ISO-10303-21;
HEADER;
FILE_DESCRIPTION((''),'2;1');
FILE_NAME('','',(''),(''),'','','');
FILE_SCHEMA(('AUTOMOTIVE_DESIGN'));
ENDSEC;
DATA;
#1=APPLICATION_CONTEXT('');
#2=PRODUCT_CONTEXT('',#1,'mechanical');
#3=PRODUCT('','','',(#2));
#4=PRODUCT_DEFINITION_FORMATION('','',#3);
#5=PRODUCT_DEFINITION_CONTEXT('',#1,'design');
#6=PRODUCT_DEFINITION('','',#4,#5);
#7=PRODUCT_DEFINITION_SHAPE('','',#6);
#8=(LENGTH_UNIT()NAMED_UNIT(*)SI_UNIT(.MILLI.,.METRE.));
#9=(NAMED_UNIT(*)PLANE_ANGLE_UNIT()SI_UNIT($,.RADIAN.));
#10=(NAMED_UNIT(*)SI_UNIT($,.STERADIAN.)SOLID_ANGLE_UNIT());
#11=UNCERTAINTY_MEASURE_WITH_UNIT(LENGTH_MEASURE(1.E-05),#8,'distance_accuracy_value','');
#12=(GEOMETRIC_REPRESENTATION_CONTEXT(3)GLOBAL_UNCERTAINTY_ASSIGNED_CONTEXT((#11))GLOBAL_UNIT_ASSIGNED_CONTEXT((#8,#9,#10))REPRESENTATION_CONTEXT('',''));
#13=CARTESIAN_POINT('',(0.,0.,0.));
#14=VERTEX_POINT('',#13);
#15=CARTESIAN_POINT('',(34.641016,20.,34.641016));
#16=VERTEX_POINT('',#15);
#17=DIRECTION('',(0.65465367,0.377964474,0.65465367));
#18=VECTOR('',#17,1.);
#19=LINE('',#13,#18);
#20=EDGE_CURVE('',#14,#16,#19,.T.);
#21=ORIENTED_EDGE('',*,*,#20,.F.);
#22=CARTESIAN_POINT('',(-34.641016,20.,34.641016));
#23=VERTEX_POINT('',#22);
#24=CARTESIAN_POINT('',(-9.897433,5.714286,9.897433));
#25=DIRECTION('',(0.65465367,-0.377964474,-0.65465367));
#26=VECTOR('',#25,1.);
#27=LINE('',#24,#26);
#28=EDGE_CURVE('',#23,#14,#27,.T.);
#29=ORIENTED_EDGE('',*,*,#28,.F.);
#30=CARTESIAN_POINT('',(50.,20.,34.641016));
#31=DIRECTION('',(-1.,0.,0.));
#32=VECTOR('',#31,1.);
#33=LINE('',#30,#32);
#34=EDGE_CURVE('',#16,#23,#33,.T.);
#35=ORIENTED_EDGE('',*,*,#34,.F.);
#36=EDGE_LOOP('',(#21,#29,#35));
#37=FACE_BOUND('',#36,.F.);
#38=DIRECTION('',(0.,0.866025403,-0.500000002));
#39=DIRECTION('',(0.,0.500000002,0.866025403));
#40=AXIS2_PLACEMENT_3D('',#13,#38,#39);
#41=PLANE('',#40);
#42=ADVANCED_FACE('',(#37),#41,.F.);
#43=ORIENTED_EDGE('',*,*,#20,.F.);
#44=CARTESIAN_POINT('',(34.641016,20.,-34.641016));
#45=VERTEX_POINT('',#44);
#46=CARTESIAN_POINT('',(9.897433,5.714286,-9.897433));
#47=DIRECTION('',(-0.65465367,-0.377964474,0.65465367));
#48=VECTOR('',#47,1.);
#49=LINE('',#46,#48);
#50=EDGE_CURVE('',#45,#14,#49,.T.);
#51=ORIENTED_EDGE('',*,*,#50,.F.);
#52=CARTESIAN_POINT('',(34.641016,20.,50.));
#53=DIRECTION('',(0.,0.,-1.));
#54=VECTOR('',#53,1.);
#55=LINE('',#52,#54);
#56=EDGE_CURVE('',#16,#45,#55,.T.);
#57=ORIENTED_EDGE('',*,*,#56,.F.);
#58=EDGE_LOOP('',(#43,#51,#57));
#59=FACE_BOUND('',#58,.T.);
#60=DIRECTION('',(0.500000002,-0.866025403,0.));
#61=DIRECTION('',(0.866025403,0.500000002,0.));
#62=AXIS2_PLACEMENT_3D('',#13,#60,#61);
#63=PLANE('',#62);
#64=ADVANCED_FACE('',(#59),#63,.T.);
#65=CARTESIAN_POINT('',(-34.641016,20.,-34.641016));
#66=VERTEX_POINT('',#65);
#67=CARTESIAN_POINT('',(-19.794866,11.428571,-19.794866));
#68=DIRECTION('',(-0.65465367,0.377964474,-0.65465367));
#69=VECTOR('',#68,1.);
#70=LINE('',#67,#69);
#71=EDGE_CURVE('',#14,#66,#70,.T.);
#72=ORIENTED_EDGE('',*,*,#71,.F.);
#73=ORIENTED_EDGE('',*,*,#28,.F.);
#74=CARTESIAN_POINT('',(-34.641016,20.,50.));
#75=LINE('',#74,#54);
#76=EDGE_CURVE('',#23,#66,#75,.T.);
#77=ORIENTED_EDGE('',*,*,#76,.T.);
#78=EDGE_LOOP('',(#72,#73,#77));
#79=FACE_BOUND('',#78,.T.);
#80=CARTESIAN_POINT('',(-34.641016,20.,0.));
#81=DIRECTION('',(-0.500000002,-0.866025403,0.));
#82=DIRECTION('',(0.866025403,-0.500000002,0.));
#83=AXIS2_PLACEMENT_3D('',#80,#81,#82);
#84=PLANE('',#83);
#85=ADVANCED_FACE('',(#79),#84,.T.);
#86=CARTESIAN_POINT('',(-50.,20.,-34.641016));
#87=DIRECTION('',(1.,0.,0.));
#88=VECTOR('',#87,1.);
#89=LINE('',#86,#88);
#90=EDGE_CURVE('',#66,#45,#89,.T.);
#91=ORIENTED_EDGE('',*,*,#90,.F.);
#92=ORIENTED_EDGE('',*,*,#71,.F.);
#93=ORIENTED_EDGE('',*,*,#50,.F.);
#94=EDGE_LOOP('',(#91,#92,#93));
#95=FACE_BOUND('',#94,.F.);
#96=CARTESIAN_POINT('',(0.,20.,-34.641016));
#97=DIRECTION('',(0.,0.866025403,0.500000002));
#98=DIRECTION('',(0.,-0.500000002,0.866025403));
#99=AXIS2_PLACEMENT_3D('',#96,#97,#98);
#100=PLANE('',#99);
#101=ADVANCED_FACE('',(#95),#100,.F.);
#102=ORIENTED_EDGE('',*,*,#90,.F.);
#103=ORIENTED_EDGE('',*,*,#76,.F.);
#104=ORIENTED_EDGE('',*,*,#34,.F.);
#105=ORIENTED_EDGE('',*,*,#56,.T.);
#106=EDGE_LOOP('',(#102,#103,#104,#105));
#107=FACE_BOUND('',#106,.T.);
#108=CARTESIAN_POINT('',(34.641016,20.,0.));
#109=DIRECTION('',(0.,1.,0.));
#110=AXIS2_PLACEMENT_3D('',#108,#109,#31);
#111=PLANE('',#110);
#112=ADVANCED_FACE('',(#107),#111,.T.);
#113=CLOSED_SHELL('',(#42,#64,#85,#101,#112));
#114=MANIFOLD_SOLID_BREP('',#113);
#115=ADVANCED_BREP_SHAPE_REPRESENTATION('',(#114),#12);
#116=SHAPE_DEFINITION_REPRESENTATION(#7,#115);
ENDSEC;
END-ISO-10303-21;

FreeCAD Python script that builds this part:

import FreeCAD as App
import Part
import Sketcher
Q = App.Units.Quantity

doc = App.newDocument("Part")
params = doc.addObject("Spreadsheet::Sheet", "Params")
for row, (alias, value) in enumerate([
    ("sketch1_length", "40 mm"),
    ("pad1_length", "100 mm"),
    ("sketch2_width", "100 mm"),
    ("sketch2_length", "40 mm"),
    ("pocket1_length", "100 mm"),
], start=1):
    params.set(f"A{row}", alias)
    params.set(f"B{row}", "=" + value)
    params.setAlias(f"B{row}", alias)

body = doc.addObject("PartDesign::Body", "Body")

# Sketch on XY plane
sketch1 = body.newObject("Sketcher::SketchObject", "Sketch")
sketch1.AttachmentSupport = (doc.getObject("XY_Plane"), [""])
sketch1.MapMode = "FlatFace"
sketch1.addGeometry(Part.LineSegment(App.Vector(-34.641016, 20, 0), App.Vector(0, 0, 0)), False)
sketch1.addGeometry(Part.LineSegment(App.Vector(0, 0, 0), App.Vector(34.641016, 20, 0)), False)
sketch1.addGeometry(Part.LineSegment(App.Vector(34.641016, 20, 0), App.Vector(-34.641016, 20, 0)), False)
sketch1.addConstraint(Sketcher.Constraint("Coincident", 0, 2, 1, 1))
sketch1.addConstraint(Sketcher.Constraint("Coincident", 1, 2, 2, 1))
sketch1.addConstraint(Sketcher.Constraint("Coincident", 2, 2, 0, 1))
sketch1.addConstraint(Sketcher.Constraint("Horizontal", 2))
sketch1.addConstraint(Sketcher.Constraint("Coincident", 0, 2, -1, 1))
sketch1.addConstraint(Sketcher.Constraint("Equal", 0, 1))
sketch1.addConstraint(Sketcher.Constraint("Angle", 0, Q("-30 deg")))
sketch1.addConstraint(Sketcher.Constraint("Distance", 0, 40.0))
sketch1.setExpression("Constraints[7]", "Params.sketch1_length")
pad1 = body.newObject("PartDesign::Pad", "Pad")
pad1.Profile = sketch1
pad1.setExpression("Length", "Params.pad1_length")
pad1.Midplane = True

# Sketch on YZ plane
sketch2 = body.newObject("Sketcher::SketchObject", "Sketch001")
sketch2.AttachmentSupport = (doc.getObject("YZ_Plane"), [""])
sketch2.MapMode = "FlatFace"
sketch2.addGeometry(Part.LineSegment(App.Vector(-50, 50, 0), App.Vector(-50, -50, 0)), False)
sketch2.addGeometry(Part.LineSegment(App.Vector(-50, -50, 0), App.Vector(50, -50, 0)), False)
sketch2.addGeometry(Part.LineSegment(App.Vector(50, -50, 0), App.Vector(50, 50, 0)), False)
sketch2.addGeometry(Part.LineSegment(App.Vector(50, 50, 0), App.Vector(-50, 50, 0)), False)
sketch2.addGeometry(Part.LineSegment(App.Vector(20, 34.641016, 0), App.Vector(20, -34.641016, 0)), False)
sketch2.addGeometry(Part.LineSegment(App.Vector(20, -34.641016, 0), App.Vector(0, 0, 0)), False)
sketch2.addGeometry(Part.LineSegment(App.Vector(0, 0, 0), App.Vector(20, 34.641016, 0)), False)
sketch2.addConstraint(Sketcher.Constraint("Coincident", 0, 2, 1, 1))
sketch2.addConstraint(Sketcher.Constraint("Coincident", 1, 2, 2, 1))
sketch2.addConstraint(Sketcher.Constraint("Coincident", 2, 2, 3, 1))
sketch2.addConstraint(Sketcher.Constraint("Coincident", 3, 2, 0, 1))
sketch2.addConstraint(Sketcher.Constraint("Coincident", 4, 2, 5, 1))
sketch2.addConstraint(Sketcher.Constraint("Coincident", 5, 2, 6, 1))
sketch2.addConstraint(Sketcher.Constraint("Coincident", 6, 2, 4, 1))
sketch2.addConstraint(Sketcher.Constraint("Vertical", 0))
sketch2.addConstraint(Sketcher.Constraint("Horizontal", 1))
sketch2.addConstraint(Sketcher.Constraint("Vertical", 2))
sketch2.addConstraint(Sketcher.Constraint("Horizontal", 3))
sketch2.addConstraint(Sketcher.Constraint("Vertical", 4))
sketch2.addConstraint(Sketcher.Constraint("Coincident", 5, 2, -1, 1))
sketch2.addConstraint(Sketcher.Constraint("Symmetric", 0, 2, 2, 2, -1, 1))
sketch2.addConstraint(Sketcher.Constraint("Equal", 3, 0))
sketch2.addConstraint(Sketcher.Constraint("Equal", 5, 6))
sketch2.addConstraint(Sketcher.Constraint("DistanceX", 1, 1, 1, 2, 100.0))
sketch2.addConstraint(Sketcher.Constraint("Angle", 5, Q("120 deg")))
sketch2.addConstraint(Sketcher.Constraint("Distance", 5, 40.0))
sketch2.setExpression("Constraints[16]", "Params.sketch2_width")
sketch2.setExpression("Constraints[18]", "Params.sketch2_length")
pocket1 = body.newObject("PartDesign::Pocket", "Pocket")
pocket1.Profile = sketch2
pocket1.setExpression("Length", "Params.pocket1_length")
pocket1.Midplane = True

doc.recompute()
